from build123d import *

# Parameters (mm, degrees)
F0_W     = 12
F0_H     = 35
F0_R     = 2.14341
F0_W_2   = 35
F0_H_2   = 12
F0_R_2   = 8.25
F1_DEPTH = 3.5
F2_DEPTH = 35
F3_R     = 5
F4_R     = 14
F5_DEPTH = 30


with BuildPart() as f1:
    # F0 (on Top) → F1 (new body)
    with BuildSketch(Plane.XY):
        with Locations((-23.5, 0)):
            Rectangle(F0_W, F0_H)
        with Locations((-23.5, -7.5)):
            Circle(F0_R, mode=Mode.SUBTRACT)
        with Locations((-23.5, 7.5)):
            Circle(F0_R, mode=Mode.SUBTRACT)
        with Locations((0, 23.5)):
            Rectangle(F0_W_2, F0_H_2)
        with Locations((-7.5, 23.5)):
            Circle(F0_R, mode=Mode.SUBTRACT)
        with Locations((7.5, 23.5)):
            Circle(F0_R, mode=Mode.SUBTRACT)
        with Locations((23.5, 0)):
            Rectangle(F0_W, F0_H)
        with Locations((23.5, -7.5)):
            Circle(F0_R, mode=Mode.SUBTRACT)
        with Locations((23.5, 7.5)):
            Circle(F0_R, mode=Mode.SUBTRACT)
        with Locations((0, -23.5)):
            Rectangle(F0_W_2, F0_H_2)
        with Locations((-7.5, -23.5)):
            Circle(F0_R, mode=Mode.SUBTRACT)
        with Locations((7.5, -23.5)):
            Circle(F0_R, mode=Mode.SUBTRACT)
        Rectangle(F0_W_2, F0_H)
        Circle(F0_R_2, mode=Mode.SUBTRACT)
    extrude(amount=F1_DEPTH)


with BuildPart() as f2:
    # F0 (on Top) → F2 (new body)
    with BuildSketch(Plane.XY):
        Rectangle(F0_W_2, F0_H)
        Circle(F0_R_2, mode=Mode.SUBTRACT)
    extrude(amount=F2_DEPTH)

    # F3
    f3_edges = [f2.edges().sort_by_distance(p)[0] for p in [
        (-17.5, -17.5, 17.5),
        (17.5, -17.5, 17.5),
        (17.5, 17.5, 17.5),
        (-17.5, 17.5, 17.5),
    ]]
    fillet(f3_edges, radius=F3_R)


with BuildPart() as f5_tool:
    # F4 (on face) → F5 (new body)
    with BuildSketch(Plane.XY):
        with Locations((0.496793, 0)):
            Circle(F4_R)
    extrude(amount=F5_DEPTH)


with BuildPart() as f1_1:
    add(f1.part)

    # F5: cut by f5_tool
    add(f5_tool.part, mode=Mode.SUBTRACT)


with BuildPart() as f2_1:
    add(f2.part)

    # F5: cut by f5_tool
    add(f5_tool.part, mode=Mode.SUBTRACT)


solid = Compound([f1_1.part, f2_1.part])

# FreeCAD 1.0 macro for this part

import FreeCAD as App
import Part
import Sketcher
from FreeCAD import Vector


def edges_at(feature, points):
    """Names of the edges that pass closest to the given points."""
    edges = feature.Shape.Edges
    near = lambda p: min(range(len(edges)), key=lambda i: edges[i].distToShape(Part.Vertex(*p))[0])
    return sorted({f"Edge{near(p) + 1}" for p in points})


def add_polygon(sketch, points):
    """Adds a closed chain of lines whose ends are joined by coincident constraints."""
    first, n = sketch.GeometryCount, len(points)
    for a, b in zip(points, points[1:] + points[:1]):
        sketch.addGeometry(Part.LineSegment(App.Vector(*a, 0), App.Vector(*b, 0)), False)
    for i in range(n):
        sketch.addConstraint(Sketcher.Constraint("Coincident", first + i, 2, first + (i + 1) % n, 1))

doc = App.newDocument("Part")
params = doc.addObject("Spreadsheet::Sheet", "Params")
for row, (alias, value) in enumerate([
    ("sketch1_diameter", "16.5 mm"),
    ("sketch1_width", "12 mm"),
    ("sketch1_width2", "35 mm"),
    ("pad1_length", "3.5 mm"),
    ("sketch2_diameter", "16.5 mm"),
    ("sketch2_width", "35 mm"),
    ("pad2_length", "35 mm"),
    ("fillet_radius", "5 mm"),
    ("sketch3_diameter", "28 mm"),
    ("pad3_length", "30 mm"),
], start=1):
    params.set(f"A{row}", alias)
    params.set(f"B{row}", "=" + value)
    params.setAlias(f"B{row}", alias)

body = doc.addObject("PartDesign::Body", "Body")

sketch1 = body.newObject("Sketcher::SketchObject", "Sketch")
sketch1.AttachmentSupport = (doc.getObject("XY_Plane"), [""])
sketch1.MapMode = "FlatFace"
add_polygon(sketch1, [(-29.5, 17.5), (-29.5, -17.5), (-17.5, -17.5), (-17.5, -29.5), (17.5, -29.5), (17.5, -17.5), (29.5, -17.5), (29.5, 17.5), (17.5, 17.5), (17.5, 29.5), (-17.5, 29.5), (-17.5, 17.5)])
sketch1.addGeometry(Part.Circle(Vector(-7.5, -23.5, 0), Vector(0, 0, 1), 2.1), False)
sketch1.addGeometry(Part.Circle(Vector(-23.5, -7.5, 0), Vector(0, 0, 1), 2.1), False)
sketch1.addGeometry(Part.Circle(Vector(7.5, -23.5, 0), Vector(0, 0, 1), 2.1), False)
sketch1.addGeometry(Part.Circle(Vector(23.5, -7.5, 0), Vector(0, 0, 1), 2.1), False)
sketch1.addGeometry(Part.Circle(Vector(-23.5, 7.5, 0), Vector(0, 0, 1), 2.1), False)
sketch1.addGeometry(Part.Circle(Vector(0, 0, 0), Vector(0, 0, 1), 8.2), False)
sketch1.addGeometry(Part.Circle(Vector(-7.5, 23.5, 0), Vector(0, 0, 1), 2.1), False)
sketch1.addGeometry(Part.Circle(Vector(23.5, 7.5, 0), Vector(0, 0, 1), 2.1), False)
sketch1.addGeometry(Part.Circle(Vector(7.5, 23.5, 0), Vector(0, 0, 1), 2.1), False)
sketch1.addConstraint([
    Sketcher.Constraint("Vertical", 0),
    Sketcher.Constraint("Horizontal", 1),
    Sketcher.Constraint("Vertical", 2),
    Sketcher.Constraint("Horizontal", 3),
    Sketcher.Constraint("Vertical", 4),
    Sketcher.Constraint("Horizontal", 5),
    Sketcher.Constraint("Vertical", 6),
    Sketcher.Constraint("Horizontal", 7),
    Sketcher.Constraint("Vertical", 8),
    Sketcher.Constraint("Horizontal", 9),
    Sketcher.Constraint("Vertical", 10),
    Sketcher.Constraint("Horizontal", 11),
    Sketcher.Constraint("Coincident", 17, 3, -1, 1),
    Sketcher.Constraint("Equal", 12, 13),
    Sketcher.Constraint("Equal", 13, 14),
    Sketcher.Constraint("Equal", 14, 15),
    Sketcher.Constraint("Equal", 15, 16),
    Sketcher.Constraint("Equal", 16, 18),
    Sketcher.Constraint("Equal", 18, 19),
    Sketcher.Constraint("Equal", 19, 20),
    Sketcher.Constraint("Symmetric", 15, 3, 16, 3, -1, 1),
    Sketcher.Constraint("Symmetric", 14, 3, 18, 3, -1, 1),
    Sketcher.Constraint("Symmetric", 13, 3, 19, 3, -1, 1),
    Sketcher.Constraint("Symmetric", 12, 3, 20, 3, -1, 1),
    Sketcher.Constraint("Symmetric", 0, 2, 6, 2, -1, 1),
    Sketcher.Constraint("Symmetric", 2, 2, 8, 2, -1, 1),
    Sketcher.Constraint("Symmetric", 4, 2, 10, 2, -1, 1),
    Sketcher.Constraint("Symmetric", 12, 3, 14, 3, -2),
    Sketcher.Constraint("Symmetric", 13, 3, 15, 3, -2),
    Sketcher.Constraint("Symmetric", 1, 2, 4, 2, -2),
    Sketcher.Constraint("Equal", 9, 0),
    Sketcher.Constraint("Equal", 11, 2),
    Sketcher.Constraint("Diameter", 17, 16.5),
    Sketcher.Constraint("DistanceX", 1, 1, 1, 2, 12.0),
    Sketcher.Constraint("DistanceX", 3, 1, 3, 2, 35.0),
    Sketcher.Constraint("DistanceX", 13, 3, 12, 3, 16.0),
    Sketcher.Constraint("DistanceY", 12, 3, 13, 3, 16.0),
    Sketcher.Constraint("DistanceX", 12, 3, 14, 3, 15.0),
    Sketcher.Constraint("DistanceY", 13, 3, 16, 3, 15.0),
    Sketcher.Constraint("Diameter", 12, 4.28682),
])
sketch1.setExpression("Constraints[44]", "Params.sketch1_diameter")
sketch1.setExpression("Constraints[45]", "Params.sketch1_width")
sketch1.setExpression("Constraints[46]", "Params.sketch1_width2")
pad1 = body.newObject("PartDesign::Pad", "Pad")
pad1.Profile = sketch1
pad1.setExpression("Length", "Params.pad1_length")
body2 = doc.addObject("PartDesign::Body", "Body001")

sketch2 = body2.newObject("Sketcher::SketchObject", "Sketch001")
sketch2.AttachmentSupport = (doc.getObject("XY_Plane001"), [""])
sketch2.MapMode = "FlatFace"
add_polygon(sketch2, [(-18, 18), (-18, -18), (18, -18), (18, 18)])
sketch2.addGeometry(Part.Circle(Vector(0, 0, 0), Vector(0, 0, 1), 8), False)
sketch2.addConstraint([
    Sketcher.Constraint("Vertical", 0),
    Sketcher.Constraint("Horizontal", 1),
    Sketcher.Constraint("Vertical", 2),
    Sketcher.Constraint("Horizontal", 3),
    Sketcher.Constraint("Coincident", 4, 3, -1, 1),
    Sketcher.Constraint("Symmetric", 0, 2, 2, 2, -1, 1),
    Sketcher.Constraint("Equal", 3, 0),
    Sketcher.Constraint("Diameter", 4, 16.5),
    Sketcher.Constraint("DistanceX", 1, 1, 1, 2, 35.0),
])
sketch2.setExpression("Constraints[11]", "Params.sketch2_diameter")
sketch2.setExpression("Constraints[12]", "Params.sketch2_width")
pad2 = body2.newObject("PartDesign::Pad", "Pad001")
pad2.Profile = sketch2
pad2.setExpression("Length", "Params.pad2_length")
doc.recompute()

fillet = body2.newObject("PartDesign::Fillet", "Fillet")
fillet.Base = (pad2, edges_at(pad2, [
    (-17.5, -17.5, 17.5),
    (17.5, -17.5, 17.5),
    (17.5, 17.5, 17.5),
    (-17.5, 17.5, 17.5),
]))
fillet.setExpression("Radius", "Params.fillet_radius")
body3 = doc.addObject("PartDesign::Body", "Body002")

sketch3 = body3.newObject("Sketcher::SketchObject", "Sketch002")
sketch3.AttachmentSupport = (doc.getObject("XY_Plane002"), [""])
sketch3.MapMode = "FlatFace"
sketch3.addGeometry(Part.Circle(Vector(0, 0, 0), Vector(0, 0, 1), 14), False)
sketch3.addConstraint([
    Sketcher.Constraint("PointOnObject", 0, 3, -1),
    Sketcher.Constraint("Diameter", 0, 28.0),
    Sketcher.Constraint("DistanceX", -1, 1, 0, 3, 0.496793),
])
sketch3.setExpression("Constraints[1]", "Params.sketch3_diameter")
pad3 = body3.newObject("PartDesign::Pad", "Pad002")
pad3.Profile = sketch3
pad3.setExpression("Length", "Params.pad3_length")
doc.recompute()

body4 = doc.addObject("PartDesign::Body", "Body003")
body4.BaseFeature = body3
boolean = body.newObject("PartDesign::Boolean", "Boolean")
boolean.Type = "Cut"
boolean.addObjects([body4])
doc.recompute()

boolean2 = body2.newObject("PartDesign::Boolean", "Boolean001")
boolean2.Type = "Cut"
boolean2.addObjects([body3])

doc.recompute()
